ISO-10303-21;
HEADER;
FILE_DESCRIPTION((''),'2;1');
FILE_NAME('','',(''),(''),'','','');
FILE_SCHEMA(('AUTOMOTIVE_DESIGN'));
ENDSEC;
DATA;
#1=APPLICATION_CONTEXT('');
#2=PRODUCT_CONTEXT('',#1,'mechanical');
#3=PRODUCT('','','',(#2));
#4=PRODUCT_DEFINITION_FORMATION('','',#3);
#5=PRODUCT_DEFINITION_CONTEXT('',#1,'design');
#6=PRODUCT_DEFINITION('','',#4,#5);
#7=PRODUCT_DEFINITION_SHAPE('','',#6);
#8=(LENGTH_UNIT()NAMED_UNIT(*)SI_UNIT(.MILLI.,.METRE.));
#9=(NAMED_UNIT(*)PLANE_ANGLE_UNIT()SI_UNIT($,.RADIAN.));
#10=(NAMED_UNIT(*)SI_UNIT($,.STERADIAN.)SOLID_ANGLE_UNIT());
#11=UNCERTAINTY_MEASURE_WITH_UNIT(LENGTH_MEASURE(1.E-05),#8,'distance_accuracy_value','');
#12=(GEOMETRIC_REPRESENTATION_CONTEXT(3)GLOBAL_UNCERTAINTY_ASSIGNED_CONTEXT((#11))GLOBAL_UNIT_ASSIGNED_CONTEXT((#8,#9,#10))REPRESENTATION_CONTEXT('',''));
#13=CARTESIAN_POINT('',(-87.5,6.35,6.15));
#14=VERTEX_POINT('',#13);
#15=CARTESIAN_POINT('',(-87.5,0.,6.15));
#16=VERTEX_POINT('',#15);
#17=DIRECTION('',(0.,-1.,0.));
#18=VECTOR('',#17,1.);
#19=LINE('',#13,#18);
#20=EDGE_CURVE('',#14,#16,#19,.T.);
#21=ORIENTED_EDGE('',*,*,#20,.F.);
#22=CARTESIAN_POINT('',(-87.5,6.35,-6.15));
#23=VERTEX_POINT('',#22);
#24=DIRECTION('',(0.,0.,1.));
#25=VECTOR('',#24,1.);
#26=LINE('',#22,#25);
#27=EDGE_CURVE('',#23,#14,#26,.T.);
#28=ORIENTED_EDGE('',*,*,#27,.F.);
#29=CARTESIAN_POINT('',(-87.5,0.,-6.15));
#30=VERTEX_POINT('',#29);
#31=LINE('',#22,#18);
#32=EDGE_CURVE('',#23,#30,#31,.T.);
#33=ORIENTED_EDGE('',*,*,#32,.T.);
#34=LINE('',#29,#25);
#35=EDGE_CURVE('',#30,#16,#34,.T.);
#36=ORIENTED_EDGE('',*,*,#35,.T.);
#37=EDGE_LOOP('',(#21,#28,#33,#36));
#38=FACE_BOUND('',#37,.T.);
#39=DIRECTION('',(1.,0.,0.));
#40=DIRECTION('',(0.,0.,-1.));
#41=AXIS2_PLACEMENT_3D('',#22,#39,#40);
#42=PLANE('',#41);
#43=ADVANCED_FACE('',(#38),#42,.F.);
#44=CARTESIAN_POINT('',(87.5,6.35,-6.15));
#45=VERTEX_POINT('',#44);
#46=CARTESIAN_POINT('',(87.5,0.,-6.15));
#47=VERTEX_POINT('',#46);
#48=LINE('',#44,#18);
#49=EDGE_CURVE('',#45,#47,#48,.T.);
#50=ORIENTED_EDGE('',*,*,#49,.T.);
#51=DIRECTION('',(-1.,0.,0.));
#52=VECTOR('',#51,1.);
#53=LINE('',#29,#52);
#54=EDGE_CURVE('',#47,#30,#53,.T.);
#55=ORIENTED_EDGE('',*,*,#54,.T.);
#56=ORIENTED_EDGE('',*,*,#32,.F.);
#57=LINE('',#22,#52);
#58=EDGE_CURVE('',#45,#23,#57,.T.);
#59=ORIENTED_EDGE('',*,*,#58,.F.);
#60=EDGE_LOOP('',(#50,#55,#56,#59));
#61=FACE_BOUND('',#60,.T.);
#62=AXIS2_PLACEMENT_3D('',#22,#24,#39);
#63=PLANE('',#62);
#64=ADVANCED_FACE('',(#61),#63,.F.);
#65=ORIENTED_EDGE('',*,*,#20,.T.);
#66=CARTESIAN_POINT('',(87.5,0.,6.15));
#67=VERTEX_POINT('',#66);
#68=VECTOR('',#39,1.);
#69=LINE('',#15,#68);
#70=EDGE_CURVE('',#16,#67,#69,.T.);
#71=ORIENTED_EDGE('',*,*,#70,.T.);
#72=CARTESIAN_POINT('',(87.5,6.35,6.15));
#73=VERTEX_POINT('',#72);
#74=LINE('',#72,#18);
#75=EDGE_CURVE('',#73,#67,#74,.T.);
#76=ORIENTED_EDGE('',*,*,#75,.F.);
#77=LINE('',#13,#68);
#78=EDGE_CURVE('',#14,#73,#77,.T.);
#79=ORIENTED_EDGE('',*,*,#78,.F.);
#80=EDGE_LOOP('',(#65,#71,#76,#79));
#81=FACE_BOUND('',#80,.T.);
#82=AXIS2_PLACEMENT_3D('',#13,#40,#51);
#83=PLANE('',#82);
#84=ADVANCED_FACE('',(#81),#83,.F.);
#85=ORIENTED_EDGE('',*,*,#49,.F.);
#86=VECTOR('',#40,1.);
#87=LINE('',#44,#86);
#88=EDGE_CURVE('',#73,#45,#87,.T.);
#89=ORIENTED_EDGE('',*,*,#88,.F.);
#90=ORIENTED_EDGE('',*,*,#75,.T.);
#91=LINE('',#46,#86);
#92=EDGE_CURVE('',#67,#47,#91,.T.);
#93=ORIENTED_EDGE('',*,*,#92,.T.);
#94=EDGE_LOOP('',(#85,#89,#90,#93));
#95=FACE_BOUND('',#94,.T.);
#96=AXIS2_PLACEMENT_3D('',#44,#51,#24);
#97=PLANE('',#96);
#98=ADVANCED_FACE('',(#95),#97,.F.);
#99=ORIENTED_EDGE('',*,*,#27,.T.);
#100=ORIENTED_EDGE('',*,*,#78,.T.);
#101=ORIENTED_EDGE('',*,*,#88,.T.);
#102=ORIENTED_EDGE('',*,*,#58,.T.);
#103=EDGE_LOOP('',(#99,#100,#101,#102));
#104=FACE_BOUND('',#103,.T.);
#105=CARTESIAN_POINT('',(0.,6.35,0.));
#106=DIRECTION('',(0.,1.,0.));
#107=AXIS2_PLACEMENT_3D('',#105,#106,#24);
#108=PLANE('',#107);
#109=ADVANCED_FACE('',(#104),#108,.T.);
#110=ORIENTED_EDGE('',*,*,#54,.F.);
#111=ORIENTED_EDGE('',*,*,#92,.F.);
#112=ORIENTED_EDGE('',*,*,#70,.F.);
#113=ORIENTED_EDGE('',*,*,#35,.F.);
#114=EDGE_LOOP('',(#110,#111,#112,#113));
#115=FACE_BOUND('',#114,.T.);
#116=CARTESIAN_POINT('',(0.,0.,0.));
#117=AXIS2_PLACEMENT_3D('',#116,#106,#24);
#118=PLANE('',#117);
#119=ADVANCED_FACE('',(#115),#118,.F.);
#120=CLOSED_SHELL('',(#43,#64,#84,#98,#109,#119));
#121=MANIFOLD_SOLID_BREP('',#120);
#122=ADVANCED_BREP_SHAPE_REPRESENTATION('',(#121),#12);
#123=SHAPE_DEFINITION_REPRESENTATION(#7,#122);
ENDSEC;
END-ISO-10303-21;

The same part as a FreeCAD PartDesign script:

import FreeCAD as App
import Part
import Sketcher
from FreeCAD import Vector

doc = App.newDocument("Part")
body = doc.addObject("PartDesign::Body", "Body")

sketch1 = doc.addObject("Sketcher::SketchObject", "Sketch")
body.addObject(sketch1)
sketch1.AttachmentSupport = (doc.XZ_Plane, [""])
sketch1.MapMode = "FlatFace"
sketch1.addGeometry([
    Part.LineSegment(Vector(-88, -6, 0), Vector(-88, 6, 0)),
    Part.LineSegment(Vector(-88, 6, 0), Vector(88, 6, 0)),
    Part.LineSegment(Vector(88, 6, 0), Vector(88, -6, 0)),
    Part.LineSegment(Vector(88, -6, 0), Vector(-88, -6, 0)),
], False)
sketch1.addConstraint([
    Sketcher.Constraint("Coincident", 0, 2, 1, 1),
    Sketcher.Constraint("Coincident", 1, 2, 2, 1),
    Sketcher.Constraint("Coincident", 2, 2, 3, 1),
    Sketcher.Constraint("Coincident", 3, 2, 0, 1),
    Sketcher.Constraint("Vertical", 0),
    Sketcher.Constraint("Horizontal", 1),
    Sketcher.Constraint("Vertical", 2),
    Sketcher.Constraint("Horizontal", 3),
    Sketcher.Constraint("Symmetric", 0, 2, 2, 2, -1, 1),
    Sketcher.Constraint("DistanceX", 1, 1, 1, 2, 175.0),
    Sketcher.Constraint("DistanceY", 0, 1, 0, 2, 12.3),
])
pad1 = doc.addObject("PartDesign::Pad", "Pad")
body.addObject(pad1)
pad1.Profile = sketch1
pad1.Length = 6.35
pad1.Reversed = True

doc.recompute()
